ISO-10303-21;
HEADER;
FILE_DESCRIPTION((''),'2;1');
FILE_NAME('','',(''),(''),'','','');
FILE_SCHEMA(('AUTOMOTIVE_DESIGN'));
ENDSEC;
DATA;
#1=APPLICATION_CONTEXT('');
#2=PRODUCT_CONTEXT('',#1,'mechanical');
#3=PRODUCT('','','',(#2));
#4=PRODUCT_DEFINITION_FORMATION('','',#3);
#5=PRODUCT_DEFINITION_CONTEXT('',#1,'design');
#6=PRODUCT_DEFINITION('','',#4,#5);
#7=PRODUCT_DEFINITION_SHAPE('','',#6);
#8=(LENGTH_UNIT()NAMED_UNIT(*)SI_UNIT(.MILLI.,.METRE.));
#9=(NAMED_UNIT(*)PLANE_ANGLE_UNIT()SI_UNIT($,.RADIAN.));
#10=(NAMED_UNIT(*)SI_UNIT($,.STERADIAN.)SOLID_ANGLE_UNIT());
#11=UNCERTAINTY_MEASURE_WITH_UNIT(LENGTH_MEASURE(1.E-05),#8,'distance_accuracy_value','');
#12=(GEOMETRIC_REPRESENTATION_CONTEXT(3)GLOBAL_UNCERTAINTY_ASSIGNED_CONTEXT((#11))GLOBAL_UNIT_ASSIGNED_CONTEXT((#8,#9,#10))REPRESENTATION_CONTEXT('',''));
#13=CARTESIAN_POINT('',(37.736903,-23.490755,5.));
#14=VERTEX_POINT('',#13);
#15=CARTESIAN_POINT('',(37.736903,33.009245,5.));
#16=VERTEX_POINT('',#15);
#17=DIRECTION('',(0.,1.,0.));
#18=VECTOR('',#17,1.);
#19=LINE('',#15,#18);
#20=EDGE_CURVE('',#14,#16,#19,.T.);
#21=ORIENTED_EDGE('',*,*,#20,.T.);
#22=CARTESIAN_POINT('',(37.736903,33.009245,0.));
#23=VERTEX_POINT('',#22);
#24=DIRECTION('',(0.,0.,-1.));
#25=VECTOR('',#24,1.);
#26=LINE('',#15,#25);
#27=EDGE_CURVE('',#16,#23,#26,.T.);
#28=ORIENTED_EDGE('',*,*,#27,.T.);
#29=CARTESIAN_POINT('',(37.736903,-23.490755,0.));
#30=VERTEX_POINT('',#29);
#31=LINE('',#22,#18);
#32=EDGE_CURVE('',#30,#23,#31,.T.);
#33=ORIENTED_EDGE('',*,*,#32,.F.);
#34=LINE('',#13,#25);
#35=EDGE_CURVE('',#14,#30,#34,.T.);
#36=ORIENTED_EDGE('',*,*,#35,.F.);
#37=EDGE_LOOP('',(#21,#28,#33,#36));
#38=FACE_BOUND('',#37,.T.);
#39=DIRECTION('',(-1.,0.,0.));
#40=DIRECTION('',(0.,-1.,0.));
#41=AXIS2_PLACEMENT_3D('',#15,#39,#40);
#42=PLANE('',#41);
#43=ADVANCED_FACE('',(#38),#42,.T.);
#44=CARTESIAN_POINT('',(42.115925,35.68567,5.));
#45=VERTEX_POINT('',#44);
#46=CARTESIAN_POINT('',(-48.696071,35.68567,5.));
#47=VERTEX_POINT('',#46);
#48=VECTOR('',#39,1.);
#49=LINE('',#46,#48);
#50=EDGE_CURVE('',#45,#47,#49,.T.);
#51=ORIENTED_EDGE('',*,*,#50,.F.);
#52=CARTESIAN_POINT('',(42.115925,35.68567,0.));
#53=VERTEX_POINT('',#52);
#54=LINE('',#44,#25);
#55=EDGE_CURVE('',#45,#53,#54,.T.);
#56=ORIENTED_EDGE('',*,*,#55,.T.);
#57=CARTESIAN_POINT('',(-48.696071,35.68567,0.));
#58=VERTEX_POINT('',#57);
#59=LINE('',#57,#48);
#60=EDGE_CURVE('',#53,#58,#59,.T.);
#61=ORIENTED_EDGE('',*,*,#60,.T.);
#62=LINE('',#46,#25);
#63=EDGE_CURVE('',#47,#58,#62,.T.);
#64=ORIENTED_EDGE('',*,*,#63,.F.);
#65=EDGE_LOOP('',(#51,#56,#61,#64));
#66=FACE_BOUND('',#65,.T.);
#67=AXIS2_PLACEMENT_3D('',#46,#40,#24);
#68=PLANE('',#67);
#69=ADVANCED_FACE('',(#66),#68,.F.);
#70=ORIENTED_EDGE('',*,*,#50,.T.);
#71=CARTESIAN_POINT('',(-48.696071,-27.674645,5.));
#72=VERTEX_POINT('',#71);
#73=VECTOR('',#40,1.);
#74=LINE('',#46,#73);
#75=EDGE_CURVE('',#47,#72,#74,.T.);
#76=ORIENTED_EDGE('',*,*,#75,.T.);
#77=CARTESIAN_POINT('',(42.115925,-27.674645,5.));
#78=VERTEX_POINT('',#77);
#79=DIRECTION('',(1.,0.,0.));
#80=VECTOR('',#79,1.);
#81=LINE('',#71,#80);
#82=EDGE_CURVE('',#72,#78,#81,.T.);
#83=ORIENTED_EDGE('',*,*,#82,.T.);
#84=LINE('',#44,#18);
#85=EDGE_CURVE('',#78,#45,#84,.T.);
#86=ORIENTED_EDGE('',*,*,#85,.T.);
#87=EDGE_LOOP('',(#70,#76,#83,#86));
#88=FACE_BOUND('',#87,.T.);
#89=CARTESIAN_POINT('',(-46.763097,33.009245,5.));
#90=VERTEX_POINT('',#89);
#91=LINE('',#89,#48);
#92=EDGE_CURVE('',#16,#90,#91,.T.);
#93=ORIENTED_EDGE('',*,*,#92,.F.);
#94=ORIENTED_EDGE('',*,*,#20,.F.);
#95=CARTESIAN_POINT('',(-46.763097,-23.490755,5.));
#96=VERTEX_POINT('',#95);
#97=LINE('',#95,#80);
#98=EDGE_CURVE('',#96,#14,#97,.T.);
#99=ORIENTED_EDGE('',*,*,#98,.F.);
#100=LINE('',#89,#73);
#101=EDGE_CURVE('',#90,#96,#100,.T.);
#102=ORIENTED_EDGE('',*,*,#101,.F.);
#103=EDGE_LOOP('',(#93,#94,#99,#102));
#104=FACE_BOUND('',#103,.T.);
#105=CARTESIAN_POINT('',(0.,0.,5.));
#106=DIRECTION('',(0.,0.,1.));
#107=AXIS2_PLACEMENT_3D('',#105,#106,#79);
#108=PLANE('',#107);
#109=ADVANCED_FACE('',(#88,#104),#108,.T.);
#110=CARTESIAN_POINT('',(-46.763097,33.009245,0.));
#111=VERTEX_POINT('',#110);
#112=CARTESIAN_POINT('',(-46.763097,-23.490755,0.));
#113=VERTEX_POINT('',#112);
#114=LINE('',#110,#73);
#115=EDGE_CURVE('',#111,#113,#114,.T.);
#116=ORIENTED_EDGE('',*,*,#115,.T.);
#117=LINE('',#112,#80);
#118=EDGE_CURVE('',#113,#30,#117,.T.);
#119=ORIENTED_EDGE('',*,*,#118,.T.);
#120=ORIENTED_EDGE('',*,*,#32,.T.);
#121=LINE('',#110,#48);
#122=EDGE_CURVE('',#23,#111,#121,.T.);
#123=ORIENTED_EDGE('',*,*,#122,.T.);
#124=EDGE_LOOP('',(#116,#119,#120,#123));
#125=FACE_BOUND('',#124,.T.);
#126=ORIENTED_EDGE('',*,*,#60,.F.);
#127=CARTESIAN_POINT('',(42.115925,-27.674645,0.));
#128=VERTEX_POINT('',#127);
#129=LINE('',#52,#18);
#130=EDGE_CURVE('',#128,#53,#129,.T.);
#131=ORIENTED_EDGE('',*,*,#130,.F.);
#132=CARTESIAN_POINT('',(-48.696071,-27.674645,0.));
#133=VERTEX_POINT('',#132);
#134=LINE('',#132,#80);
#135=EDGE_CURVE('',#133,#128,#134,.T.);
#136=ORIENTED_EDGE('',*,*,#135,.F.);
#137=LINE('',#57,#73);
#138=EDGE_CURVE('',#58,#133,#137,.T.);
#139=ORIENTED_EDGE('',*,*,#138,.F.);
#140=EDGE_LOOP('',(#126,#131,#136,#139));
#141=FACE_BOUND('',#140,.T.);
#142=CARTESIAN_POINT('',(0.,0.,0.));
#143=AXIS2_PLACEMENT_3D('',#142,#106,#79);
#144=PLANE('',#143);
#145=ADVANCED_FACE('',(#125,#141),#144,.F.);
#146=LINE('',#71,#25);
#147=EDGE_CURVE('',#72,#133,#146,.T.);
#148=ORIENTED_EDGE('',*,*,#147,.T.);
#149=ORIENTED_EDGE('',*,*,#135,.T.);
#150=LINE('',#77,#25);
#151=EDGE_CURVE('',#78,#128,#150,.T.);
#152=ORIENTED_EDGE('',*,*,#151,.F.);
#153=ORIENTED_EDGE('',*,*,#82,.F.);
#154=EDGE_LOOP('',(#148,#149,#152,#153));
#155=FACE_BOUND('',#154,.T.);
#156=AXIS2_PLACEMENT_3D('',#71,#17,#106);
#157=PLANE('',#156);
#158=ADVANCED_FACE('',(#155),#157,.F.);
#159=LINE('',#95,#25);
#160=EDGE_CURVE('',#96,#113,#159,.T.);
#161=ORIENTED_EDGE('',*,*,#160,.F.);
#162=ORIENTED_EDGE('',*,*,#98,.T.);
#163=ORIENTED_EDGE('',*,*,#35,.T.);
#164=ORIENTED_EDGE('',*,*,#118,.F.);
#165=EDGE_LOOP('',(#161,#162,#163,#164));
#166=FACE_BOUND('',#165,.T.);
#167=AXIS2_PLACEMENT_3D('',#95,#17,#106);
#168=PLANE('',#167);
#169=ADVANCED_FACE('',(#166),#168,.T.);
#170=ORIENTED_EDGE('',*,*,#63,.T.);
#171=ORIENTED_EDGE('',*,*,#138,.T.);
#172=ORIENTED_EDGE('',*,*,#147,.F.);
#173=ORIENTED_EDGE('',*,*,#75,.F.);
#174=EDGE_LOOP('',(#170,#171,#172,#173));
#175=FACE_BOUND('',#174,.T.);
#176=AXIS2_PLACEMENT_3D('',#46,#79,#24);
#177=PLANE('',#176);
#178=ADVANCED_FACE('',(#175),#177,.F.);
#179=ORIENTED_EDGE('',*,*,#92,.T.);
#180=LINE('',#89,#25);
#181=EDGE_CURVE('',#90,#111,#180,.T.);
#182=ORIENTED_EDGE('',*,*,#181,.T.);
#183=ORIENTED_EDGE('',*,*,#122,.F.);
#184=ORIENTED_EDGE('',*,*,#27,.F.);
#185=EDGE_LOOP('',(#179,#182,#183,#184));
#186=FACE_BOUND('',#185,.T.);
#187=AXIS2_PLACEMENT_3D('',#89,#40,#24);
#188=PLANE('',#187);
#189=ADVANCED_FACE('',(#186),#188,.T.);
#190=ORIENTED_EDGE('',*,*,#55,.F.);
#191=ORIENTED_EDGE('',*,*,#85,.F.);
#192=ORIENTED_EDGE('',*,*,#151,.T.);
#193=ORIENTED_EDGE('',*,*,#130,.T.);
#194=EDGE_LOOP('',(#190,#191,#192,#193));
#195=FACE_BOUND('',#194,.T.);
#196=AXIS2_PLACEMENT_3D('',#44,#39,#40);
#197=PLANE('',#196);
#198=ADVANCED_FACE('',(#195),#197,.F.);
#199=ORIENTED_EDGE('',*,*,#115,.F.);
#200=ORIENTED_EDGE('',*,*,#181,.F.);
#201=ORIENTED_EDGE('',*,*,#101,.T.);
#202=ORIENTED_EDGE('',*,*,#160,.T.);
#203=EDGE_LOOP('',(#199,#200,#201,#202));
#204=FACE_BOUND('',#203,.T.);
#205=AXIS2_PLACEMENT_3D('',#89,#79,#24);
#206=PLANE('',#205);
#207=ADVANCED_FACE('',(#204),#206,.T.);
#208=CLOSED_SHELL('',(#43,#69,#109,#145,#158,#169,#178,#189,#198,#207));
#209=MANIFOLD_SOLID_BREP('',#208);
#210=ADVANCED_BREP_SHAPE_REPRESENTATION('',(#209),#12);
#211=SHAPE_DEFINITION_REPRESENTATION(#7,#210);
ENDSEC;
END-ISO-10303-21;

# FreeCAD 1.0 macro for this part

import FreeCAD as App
import Part
import Sketcher


def add_polygon(sketch, points):
    """Adds a closed chain of lines whose ends are joined by coincident constraints."""
    first, n = sketch.GeometryCount, len(points)
    for a, b in zip(points, points[1:] + points[:1]):
        sketch.addGeometry(Part.LineSegment(App.Vector(*a, 0), App.Vector(*b, 0)), False)
    for i in range(n):
        sketch.addConstraint(Sketcher.Constraint("Coincident", first + i, 2, first + (i + 1) % n, 1))

doc = App.newDocument("Part")
body = doc.addObject("PartDesign::Body", "Body")

# Sketch on XY plane
sketch1 = body.newObject("Sketcher::SketchObject", "Sketch")
sketch1.AttachmentSupport = (doc.getObject("XY_Plane"), [""])
sketch1.MapMode = "FlatFace"
add_polygon(sketch1, [(-49, 36), (-49, -28), (42, -28), (42, 36)])  # lines 0-3
add_polygon(sketch1, [(38, -23), (-47, -23), (-47, 33), (38, 33)])  # lines 4-7
sketch1.addConstraint(Sketcher.Constraint("Vertical", 0))
sketch1.addConstraint(Sketcher.Constraint("Horizontal", 1))
sketch1.addConstraint(Sketcher.Constraint("Vertical", 2))
sketch1.addConstraint(Sketcher.Constraint("Horizontal", 3))
sketch1.addConstraint(Sketcher.Constraint("Horizontal", 4))
sketch1.addConstraint(Sketcher.Constraint("Vertical", 5))
sketch1.addConstraint(Sketcher.Constraint("Horizontal", 6))
sketch1.addConstraint(Sketcher.Constraint("Vertical", 7))
sketch1.addConstraint(Sketcher.Constraint("DistanceX", 4, 2, 4, 1, 84.5))
sketch1.addConstraint(Sketcher.Constraint("DistanceY", 5, 1, 5, 2, 56.5))
sketch1.addConstraint(Sketcher.Constraint("DistanceX", 1, 1, 1, 2, 90.811996))
sketch1.addConstraint(Sketcher.Constraint("DistanceY", 0, 2, 0, 1, 63.360315))
sketch1.addConstraint(Sketcher.Constraint("DistanceX", 0, 2, -1, 1, 48.696071))
sketch1.addConstraint(Sketcher.Constraint("DistanceY", -1, 1, 2, 2, 35.68567))
sketch1.addConstraint(Sketcher.Constraint("DistanceY", 0, 2, 4, 2, 4.18389))
sketch1.addConstraint(Sketcher.Constraint("DistanceX", 4, 2, -1, 1, 46.763097))
pad1 = body.newObject("PartDesign::Pad", "Pad")
pad1.Profile = sketch1
pad1.Length = 5

doc.recompute()
